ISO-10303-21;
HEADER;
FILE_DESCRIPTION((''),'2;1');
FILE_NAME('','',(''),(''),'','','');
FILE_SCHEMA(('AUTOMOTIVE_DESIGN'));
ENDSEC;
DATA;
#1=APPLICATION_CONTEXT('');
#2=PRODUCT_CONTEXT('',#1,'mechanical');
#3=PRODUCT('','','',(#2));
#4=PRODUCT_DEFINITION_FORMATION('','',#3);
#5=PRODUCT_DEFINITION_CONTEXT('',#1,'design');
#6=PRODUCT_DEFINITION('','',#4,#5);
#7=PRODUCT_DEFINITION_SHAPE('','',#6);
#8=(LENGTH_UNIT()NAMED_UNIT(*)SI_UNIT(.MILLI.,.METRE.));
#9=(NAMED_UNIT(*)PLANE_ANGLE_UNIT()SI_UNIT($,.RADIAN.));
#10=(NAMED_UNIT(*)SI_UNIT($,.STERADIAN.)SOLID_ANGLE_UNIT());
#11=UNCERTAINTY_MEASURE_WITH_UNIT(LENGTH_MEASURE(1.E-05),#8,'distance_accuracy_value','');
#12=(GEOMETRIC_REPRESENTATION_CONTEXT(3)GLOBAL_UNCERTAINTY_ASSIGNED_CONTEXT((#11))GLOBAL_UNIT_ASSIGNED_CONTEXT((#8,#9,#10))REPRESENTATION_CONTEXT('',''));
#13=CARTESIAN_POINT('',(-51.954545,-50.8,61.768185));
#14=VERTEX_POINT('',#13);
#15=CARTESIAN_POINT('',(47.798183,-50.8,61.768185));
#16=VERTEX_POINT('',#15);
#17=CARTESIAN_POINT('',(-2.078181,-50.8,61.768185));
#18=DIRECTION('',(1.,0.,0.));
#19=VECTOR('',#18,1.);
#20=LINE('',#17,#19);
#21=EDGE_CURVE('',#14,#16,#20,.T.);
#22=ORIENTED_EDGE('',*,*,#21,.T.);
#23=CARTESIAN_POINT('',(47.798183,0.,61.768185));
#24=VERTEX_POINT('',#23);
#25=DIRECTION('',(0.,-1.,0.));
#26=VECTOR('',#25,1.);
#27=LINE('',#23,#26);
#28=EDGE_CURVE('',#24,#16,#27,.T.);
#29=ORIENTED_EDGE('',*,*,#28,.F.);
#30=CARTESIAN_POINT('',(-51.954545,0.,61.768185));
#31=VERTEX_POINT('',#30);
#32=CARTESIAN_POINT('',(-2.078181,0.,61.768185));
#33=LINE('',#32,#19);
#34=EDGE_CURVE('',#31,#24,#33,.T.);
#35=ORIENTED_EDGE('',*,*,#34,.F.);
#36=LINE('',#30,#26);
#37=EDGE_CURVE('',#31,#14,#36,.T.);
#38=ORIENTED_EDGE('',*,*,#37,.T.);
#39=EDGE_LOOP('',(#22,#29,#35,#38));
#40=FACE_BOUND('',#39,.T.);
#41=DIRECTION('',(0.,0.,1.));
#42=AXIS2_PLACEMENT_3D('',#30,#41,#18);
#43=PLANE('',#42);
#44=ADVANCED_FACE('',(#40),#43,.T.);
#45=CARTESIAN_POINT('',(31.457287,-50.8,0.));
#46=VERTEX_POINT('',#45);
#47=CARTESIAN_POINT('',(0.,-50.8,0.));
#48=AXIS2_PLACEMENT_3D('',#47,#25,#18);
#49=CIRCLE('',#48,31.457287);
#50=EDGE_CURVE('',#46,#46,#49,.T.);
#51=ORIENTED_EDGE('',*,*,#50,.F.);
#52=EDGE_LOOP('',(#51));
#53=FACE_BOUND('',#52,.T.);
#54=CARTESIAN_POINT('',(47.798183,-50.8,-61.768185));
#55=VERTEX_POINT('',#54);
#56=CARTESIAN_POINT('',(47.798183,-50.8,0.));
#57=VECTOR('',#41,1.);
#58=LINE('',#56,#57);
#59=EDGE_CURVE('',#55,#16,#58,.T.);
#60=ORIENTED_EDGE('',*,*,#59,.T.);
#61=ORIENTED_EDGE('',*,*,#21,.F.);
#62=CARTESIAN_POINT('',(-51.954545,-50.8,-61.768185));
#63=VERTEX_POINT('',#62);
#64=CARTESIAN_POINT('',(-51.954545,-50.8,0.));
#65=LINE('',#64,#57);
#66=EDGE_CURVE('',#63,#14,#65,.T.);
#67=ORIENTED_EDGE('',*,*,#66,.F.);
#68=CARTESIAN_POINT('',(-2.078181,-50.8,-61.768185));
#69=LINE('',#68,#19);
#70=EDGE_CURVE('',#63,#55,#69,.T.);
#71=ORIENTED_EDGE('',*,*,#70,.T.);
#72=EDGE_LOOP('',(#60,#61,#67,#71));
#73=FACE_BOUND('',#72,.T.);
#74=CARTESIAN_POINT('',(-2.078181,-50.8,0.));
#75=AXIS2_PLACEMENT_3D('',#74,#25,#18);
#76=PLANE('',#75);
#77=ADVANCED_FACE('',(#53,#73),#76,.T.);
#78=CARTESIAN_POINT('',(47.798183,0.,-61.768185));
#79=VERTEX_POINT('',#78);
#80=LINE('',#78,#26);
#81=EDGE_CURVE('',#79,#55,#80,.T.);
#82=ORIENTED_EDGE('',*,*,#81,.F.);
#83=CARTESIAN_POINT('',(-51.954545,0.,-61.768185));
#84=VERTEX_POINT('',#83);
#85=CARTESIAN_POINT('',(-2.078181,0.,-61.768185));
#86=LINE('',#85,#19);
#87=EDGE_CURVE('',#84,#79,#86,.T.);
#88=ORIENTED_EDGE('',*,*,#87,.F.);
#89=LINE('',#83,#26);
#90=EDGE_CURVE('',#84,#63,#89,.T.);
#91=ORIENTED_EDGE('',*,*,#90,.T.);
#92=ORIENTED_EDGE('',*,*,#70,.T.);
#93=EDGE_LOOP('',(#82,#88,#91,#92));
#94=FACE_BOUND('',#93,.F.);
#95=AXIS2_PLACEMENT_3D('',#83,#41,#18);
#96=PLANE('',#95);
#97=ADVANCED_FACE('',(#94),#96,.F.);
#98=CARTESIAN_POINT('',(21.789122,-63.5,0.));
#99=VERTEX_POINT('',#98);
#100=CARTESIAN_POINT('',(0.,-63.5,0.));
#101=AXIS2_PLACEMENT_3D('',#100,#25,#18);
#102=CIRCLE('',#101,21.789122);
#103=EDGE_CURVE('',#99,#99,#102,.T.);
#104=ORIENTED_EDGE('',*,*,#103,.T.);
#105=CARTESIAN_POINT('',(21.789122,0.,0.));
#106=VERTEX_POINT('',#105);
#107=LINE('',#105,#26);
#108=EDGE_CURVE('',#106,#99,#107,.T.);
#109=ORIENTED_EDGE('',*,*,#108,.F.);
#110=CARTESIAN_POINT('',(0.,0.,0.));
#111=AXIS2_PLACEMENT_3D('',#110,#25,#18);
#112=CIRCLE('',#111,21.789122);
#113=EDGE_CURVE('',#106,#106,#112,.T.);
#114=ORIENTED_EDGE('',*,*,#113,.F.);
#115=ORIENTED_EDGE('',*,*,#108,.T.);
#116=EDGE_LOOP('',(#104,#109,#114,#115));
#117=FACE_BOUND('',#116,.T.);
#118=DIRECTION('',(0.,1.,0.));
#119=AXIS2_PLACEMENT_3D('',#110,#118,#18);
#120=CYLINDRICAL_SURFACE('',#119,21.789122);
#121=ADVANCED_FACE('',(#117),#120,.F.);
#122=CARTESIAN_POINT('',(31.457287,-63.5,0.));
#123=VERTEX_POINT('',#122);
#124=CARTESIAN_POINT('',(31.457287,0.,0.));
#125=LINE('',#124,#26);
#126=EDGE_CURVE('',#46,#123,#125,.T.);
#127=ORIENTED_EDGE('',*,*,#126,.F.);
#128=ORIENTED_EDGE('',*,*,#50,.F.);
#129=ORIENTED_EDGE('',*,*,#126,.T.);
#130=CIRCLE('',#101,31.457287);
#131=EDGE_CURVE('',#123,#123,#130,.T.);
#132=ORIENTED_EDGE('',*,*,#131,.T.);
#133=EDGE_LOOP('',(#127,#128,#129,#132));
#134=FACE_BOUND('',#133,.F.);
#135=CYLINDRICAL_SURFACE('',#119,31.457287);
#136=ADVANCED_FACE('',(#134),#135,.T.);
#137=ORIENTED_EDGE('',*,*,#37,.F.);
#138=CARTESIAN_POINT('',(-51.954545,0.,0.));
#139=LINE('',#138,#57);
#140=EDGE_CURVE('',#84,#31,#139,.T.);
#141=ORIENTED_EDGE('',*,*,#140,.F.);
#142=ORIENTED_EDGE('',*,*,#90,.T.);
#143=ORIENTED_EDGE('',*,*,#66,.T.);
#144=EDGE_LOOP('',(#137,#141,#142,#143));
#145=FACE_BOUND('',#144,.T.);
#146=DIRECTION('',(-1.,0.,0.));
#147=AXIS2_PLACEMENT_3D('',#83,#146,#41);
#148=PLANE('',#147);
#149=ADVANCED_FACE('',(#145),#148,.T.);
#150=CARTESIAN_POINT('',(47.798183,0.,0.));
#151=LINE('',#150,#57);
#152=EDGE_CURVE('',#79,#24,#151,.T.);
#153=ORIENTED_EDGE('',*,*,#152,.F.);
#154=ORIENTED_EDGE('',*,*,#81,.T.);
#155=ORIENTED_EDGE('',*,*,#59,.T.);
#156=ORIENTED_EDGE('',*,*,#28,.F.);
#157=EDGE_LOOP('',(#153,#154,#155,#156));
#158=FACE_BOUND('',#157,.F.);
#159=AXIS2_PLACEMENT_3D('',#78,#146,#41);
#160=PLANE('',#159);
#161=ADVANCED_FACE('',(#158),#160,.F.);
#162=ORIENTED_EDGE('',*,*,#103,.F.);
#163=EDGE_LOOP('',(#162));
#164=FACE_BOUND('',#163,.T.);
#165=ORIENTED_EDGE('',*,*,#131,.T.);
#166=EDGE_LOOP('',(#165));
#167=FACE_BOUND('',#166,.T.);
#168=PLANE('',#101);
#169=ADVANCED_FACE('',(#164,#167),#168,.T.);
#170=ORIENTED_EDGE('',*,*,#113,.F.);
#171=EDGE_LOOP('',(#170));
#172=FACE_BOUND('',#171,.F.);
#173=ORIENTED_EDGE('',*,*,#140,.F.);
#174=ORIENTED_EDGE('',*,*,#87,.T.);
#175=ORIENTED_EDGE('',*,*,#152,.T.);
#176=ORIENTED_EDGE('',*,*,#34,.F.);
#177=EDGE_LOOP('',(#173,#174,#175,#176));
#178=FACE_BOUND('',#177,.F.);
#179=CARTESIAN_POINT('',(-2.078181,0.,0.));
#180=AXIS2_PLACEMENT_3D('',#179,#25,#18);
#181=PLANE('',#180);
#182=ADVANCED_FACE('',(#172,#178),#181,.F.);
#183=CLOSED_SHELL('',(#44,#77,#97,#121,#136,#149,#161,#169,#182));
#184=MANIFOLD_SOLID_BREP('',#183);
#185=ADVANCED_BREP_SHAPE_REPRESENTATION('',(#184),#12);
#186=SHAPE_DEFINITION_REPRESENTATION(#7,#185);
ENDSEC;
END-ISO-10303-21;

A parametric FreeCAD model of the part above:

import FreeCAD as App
import Part
import Sketcher
Q = App.Units.Quantity


def add_polygon(sketch, points):
    """Adds a closed chain of lines whose ends are joined by coincident constraints."""
    first, n = sketch.GeometryCount, len(points)
    for a, b in zip(points, points[1:] + points[:1]):
        sketch.addGeometry(Part.LineSegment(App.Vector(*a, 0), App.Vector(*b, 0)), False)
    for i in range(n):
        sketch.addConstraint(Sketcher.Constraint("Coincident", first + i, 2, first + (i + 1) % n, 1))

doc = App.newDocument("Part")
body = doc.addObject("PartDesign::Body", "Body")

# Sketch on XZ plane
sketch1 = doc.addObject("Sketcher::SketchObject", "Sketch")
body.addObject(sketch1)
sketch1.AttachmentSupport = (doc.XZ_Plane, [""])
sketch1.MapMode = "FlatFace"
add_polygon(sketch1, [(-52, 62), (-52, -62), (48, -62), (48, 62)])  # lines 0-3
sketch1.addGeometry(Part.Circle(App.Vector(0, 0, 0), App.Vector(0, 0, 1), 31), False)  # 4
sketch1.addConstraint(Sketcher.Constraint("Vertical", 0))
sketch1.addConstraint(Sketcher.Constraint("Horizontal", 1))
sketch1.addConstraint(Sketcher.Constraint("Vertical", 2))
sketch1.addConstraint(Sketcher.Constraint("Horizontal", 3))
sketch1.addConstraint(Sketcher.Constraint("Coincident", 4, 3, -1, 1))
sketch1.addConstraint(Sketcher.Constraint("Diameter", 4, Q("62.914574 mm")))
sketch1.addConstraint(Sketcher.Constraint("DistanceX", 1, 1, 1, 2, Q("99.752728 mm")))
sketch1.addConstraint(Sketcher.Constraint("DistanceY", 0, 2, 0, 1, Q("123.53637 mm")))
sketch1.addConstraint(Sketcher.Constraint("DistanceX", 0, 2, -1, 1, Q("51.954545 mm")))
sketch1.addConstraint(Sketcher.Constraint("DistanceY", 0, 2, -1, 1, Q("61.768185 mm")))
pad1 = doc.addObject("PartDesign::Pad", "Pad")
body.addObject(pad1)
pad1.Profile = sketch1
pad1.Length = Q("2 in")

# Sketch on XZ plane
sketch2 = doc.addObject("Sketcher::SketchObject", "Sketch001")
body.addObject(sketch2)
sketch2.AttachmentSupport = (doc.XZ_Plane, [""])
sketch2.MapMode = "FlatFace"
sketch2.addGeometry(Part.Circle(App.Vector(0, 0, 0), App.Vector(0, 0, 1), 31), False)
sketch2.addGeometry(Part.Circle(App.Vector(0, 0, 0), App.Vector(0, 0, 1), 22), False)
sketch2.addConstraint(Sketcher.Constraint("Coincident", 0, 3, -1, 1))
sketch2.addConstraint(Sketcher.Constraint("Coincident", 1, 3, -1, 1))
sketch2.addConstraint(Sketcher.Constraint("Diameter", 0, Q("62.914574 mm")))
sketch2.addConstraint(Sketcher.Constraint("Diameter", 1, Q("43.578244 mm")))
pad2 = doc.addObject("PartDesign::Pad", "Pad001")
body.addObject(pad2)
pad2.Profile = sketch2
pad2.Length = Q("2.5 in")

doc.recompute()
